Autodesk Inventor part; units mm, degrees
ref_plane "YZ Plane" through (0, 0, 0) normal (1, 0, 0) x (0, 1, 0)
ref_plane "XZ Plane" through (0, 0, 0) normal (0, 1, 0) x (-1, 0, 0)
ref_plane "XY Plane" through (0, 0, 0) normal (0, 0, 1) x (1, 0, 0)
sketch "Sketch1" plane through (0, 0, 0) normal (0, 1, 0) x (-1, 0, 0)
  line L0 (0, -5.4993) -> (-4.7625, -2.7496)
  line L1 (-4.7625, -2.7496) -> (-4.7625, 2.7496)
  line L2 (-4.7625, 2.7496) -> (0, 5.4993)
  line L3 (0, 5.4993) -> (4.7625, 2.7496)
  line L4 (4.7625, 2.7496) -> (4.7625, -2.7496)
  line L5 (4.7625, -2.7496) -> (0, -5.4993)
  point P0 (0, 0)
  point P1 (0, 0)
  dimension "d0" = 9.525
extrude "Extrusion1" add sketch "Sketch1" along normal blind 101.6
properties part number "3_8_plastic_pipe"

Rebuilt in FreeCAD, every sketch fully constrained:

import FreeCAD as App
import Part
import Sketcher
from FreeCAD import Vector
Q = App.Units.Quantity

doc = App.newDocument("Part")
body = doc.addObject("PartDesign::Body", "Body")

sketch1 = body.newObject("Sketcher::SketchObject", "Sketch")
sketch1.AttachmentSupport = (doc.getObject("XZ_Plane"), [""])
sketch1.MapMode = "FlatFace"
sketch1.addGeometry([
    Part.LineSegment(Vector(5, -3, 0), Vector(0, -5, 0)),
    Part.LineSegment(Vector(0, -5, 0), Vector(-5, -3, 0)),
    Part.LineSegment(Vector(-5, -3, 0), Vector(-5, 3, 0)),
    Part.LineSegment(Vector(-5, 3, 0), Vector(0, 5, 0)),
    Part.LineSegment(Vector(0, 5, 0), Vector(5, 3, 0)),
    Part.LineSegment(Vector(5, 3, 0), Vector(5, -3, 0)),
], False)
sketch1.addConstraint([
    Sketcher.Constraint("Coincident", 0, 2, 1, 1),
    Sketcher.Constraint("Coincident", 1, 2, 2, 1),
    Sketcher.Constraint("Coincident", 2, 2, 3, 1),
    Sketcher.Constraint("Coincident", 3, 2, 4, 1),
    Sketcher.Constraint("Coincident", 4, 2, 5, 1),
    Sketcher.Constraint("Coincident", 5, 2, 0, 1),
    Sketcher.Constraint("Vertical", 2),
    Sketcher.Constraint("Vertical", 5),
    Sketcher.Constraint("Symmetric", 0, 2, 3, 2, -1, 1),
    Sketcher.Constraint("Symmetric", 1, 2, 4, 2, -1, 1),
    Sketcher.Constraint("PointOnObject", 0, 2, -2),
    Sketcher.Constraint("Parallel", 0, 3),
    Sketcher.Constraint("Horizontal", 2, 2, 4, 2),
    Sketcher.Constraint("Angle", 0, Q("-149.9994 deg")),
    Sketcher.Constraint("DistanceX", 2, 2, 4, 2, Q("0.375 in")),
    Sketcher.Constraint("DistanceY", 2, 1, 2, 2, Q("0.2165 in")),
])
pad1 = body.newObject("PartDesign::Pad", "Pad")
pad1.Profile = sketch1
pad1.Length = Q("4 in")
pad1.Reversed = True

doc.recompute()
